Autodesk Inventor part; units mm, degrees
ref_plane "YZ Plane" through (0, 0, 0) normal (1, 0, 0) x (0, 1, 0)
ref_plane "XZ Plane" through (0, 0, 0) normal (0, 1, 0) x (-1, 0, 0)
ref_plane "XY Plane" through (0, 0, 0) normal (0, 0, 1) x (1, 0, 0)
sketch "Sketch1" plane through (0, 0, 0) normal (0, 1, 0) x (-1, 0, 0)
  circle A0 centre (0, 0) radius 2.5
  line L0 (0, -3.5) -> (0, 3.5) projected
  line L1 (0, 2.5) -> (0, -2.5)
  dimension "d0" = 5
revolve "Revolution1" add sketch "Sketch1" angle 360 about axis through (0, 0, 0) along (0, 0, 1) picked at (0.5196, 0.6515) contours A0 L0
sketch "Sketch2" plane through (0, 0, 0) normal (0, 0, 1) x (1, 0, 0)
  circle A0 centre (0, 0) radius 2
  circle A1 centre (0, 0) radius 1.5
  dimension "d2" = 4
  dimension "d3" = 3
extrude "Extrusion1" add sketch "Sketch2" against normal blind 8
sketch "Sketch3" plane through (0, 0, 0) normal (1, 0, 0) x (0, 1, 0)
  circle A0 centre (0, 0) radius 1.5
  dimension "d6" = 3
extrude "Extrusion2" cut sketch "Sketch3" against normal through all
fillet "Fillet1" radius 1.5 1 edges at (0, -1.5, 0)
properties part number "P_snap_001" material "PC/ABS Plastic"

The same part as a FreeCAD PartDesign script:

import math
import FreeCAD as App
import Part
import Sketcher

V = App.Vector


def edges_at(feature, points):
    """Names of the edges that pass closest to the given points."""
    edges = feature.Shape.Edges
    near = lambda p: min(range(len(edges)), key=lambda i: edges[i].distToShape(Part.Vertex(*p))[0])
    return sorted({f"Edge{near(p) + 1}" for p in points})

doc = App.newDocument("Part")
params = doc.addObject("Spreadsheet::Sheet", "Params")
for row, (alias, value) in enumerate([
    ("sketch1_radius", "2.5 mm"),
    ("revolution_angle", "360 deg"),
    ("sketch2_diameter", "4 mm"),
    ("sketch2_diameter2", "3 mm"),
    ("pad1_length", "8 mm"),
    ("sketch3_diameter", "3 mm"),
    ("fillet_radius", "1.5 mm"),
], start=1):
    params.set(f"A{row}", alias)
    params.set(f"B{row}", "=" + value)
    params.setAlias(f"B{row}", alias)

body = doc.addObject("PartDesign::Body", "Body")

# Sketch on XZ plane
sketch1 = body.newObject("Sketcher::SketchObject", "Sketch")
sketch1.AttachmentSupport = (doc.getObject("XZ_Plane"), [""])
sketch1.MapMode = "FlatFace"
sketch1.addGeometry(Part.ArcOfCircle(Part.Circle(V(0, 0, 0), V(0, 0, 1), 2.5), math.radians(90), math.radians(270)), False)
sketch1.addGeometry(Part.LineSegment(V(0, 2.5, 0), V(0, -2.5, 0)), False)
sketch1.addConstraint(Sketcher.Constraint("Coincident", 0, 1, 1, 1))
sketch1.addConstraint(Sketcher.Constraint("Coincident", 1, 2, 0, 2))
sketch1.addConstraint(Sketcher.Constraint("Vertical", 1))
sketch1.addConstraint(Sketcher.Constraint("Coincident", 0, 3, -1, 1))
sketch1.addConstraint(Sketcher.Constraint("PointOnObject", 0, 1, -2))
sketch1.addConstraint(Sketcher.Constraint("Radius", 0, 2.5))
sketch1.setExpression("Constraints[5]", "Params.sketch1_radius")
revolution = body.newObject("PartDesign::Revolution", "Revolution")
revolution.Profile = sketch1
revolution.ReferenceAxis = (sketch1, ["V_Axis"])
revolution.setExpression("Angle", "Params.revolution_angle")

# Sketch on XY plane
sketch2 = body.newObject("Sketcher::SketchObject", "Sketch001")
sketch2.AttachmentSupport = (doc.getObject("XY_Plane"), [""])
sketch2.MapMode = "FlatFace"
sketch2.addGeometry(Part.Circle(V(0, 0, 0), V(0, 0, 1), 2), False)
sketch2.addGeometry(Part.Circle(V(0, 0, 0), V(0, 0, 1), 1.5), False)
sketch2.addConstraint(Sketcher.Constraint("Coincident", 0, 3, -1, 1))
sketch2.addConstraint(Sketcher.Constraint("Coincident", 1, 3, -1, 1))
sketch2.addConstraint(Sketcher.Constraint("Diameter", 0, 4.0))
sketch2.addConstraint(Sketcher.Constraint("Diameter", 1, 3.0))
sketch2.setExpression("Constraints[2]", "Params.sketch2_diameter")
sketch2.setExpression("Constraints[3]", "Params.sketch2_diameter2")
pad1 = body.newObject("PartDesign::Pad", "Pad")
pad1.Profile = sketch2
pad1.setExpression("Length", "Params.pad1_length")
pad1.Reversed = True

# Sketch on YZ plane
sketch3 = body.newObject("Sketcher::SketchObject", "Sketch002")
sketch3.AttachmentSupport = (doc.getObject("YZ_Plane"), [""])
sketch3.MapMode = "FlatFace"
sketch3.addGeometry(Part.Circle(V(0, 0, 0), V(0, 0, 1), 1.5), False)
sketch3.addConstraint(Sketcher.Constraint("Coincident", 0, 3, -1, 1))
sketch3.addConstraint(Sketcher.Constraint("Diameter", 0, 3.0))
sketch3.setExpression("Constraints[1]", "Params.sketch3_diameter")
pocket1 = body.newObject("PartDesign::Pocket", "Pocket")
pocket1.Profile = sketch3
pocket1.Type = "ThroughAll"
doc.recompute()

fillet = body.newObject("PartDesign::Fillet", "Fillet")
fillet.Base = (pocket1, edges_at(pocket1, [(0, -1.5, 0)]))
fillet.setExpression("Radius", "Params.fillet_radius")

doc.recompute()
